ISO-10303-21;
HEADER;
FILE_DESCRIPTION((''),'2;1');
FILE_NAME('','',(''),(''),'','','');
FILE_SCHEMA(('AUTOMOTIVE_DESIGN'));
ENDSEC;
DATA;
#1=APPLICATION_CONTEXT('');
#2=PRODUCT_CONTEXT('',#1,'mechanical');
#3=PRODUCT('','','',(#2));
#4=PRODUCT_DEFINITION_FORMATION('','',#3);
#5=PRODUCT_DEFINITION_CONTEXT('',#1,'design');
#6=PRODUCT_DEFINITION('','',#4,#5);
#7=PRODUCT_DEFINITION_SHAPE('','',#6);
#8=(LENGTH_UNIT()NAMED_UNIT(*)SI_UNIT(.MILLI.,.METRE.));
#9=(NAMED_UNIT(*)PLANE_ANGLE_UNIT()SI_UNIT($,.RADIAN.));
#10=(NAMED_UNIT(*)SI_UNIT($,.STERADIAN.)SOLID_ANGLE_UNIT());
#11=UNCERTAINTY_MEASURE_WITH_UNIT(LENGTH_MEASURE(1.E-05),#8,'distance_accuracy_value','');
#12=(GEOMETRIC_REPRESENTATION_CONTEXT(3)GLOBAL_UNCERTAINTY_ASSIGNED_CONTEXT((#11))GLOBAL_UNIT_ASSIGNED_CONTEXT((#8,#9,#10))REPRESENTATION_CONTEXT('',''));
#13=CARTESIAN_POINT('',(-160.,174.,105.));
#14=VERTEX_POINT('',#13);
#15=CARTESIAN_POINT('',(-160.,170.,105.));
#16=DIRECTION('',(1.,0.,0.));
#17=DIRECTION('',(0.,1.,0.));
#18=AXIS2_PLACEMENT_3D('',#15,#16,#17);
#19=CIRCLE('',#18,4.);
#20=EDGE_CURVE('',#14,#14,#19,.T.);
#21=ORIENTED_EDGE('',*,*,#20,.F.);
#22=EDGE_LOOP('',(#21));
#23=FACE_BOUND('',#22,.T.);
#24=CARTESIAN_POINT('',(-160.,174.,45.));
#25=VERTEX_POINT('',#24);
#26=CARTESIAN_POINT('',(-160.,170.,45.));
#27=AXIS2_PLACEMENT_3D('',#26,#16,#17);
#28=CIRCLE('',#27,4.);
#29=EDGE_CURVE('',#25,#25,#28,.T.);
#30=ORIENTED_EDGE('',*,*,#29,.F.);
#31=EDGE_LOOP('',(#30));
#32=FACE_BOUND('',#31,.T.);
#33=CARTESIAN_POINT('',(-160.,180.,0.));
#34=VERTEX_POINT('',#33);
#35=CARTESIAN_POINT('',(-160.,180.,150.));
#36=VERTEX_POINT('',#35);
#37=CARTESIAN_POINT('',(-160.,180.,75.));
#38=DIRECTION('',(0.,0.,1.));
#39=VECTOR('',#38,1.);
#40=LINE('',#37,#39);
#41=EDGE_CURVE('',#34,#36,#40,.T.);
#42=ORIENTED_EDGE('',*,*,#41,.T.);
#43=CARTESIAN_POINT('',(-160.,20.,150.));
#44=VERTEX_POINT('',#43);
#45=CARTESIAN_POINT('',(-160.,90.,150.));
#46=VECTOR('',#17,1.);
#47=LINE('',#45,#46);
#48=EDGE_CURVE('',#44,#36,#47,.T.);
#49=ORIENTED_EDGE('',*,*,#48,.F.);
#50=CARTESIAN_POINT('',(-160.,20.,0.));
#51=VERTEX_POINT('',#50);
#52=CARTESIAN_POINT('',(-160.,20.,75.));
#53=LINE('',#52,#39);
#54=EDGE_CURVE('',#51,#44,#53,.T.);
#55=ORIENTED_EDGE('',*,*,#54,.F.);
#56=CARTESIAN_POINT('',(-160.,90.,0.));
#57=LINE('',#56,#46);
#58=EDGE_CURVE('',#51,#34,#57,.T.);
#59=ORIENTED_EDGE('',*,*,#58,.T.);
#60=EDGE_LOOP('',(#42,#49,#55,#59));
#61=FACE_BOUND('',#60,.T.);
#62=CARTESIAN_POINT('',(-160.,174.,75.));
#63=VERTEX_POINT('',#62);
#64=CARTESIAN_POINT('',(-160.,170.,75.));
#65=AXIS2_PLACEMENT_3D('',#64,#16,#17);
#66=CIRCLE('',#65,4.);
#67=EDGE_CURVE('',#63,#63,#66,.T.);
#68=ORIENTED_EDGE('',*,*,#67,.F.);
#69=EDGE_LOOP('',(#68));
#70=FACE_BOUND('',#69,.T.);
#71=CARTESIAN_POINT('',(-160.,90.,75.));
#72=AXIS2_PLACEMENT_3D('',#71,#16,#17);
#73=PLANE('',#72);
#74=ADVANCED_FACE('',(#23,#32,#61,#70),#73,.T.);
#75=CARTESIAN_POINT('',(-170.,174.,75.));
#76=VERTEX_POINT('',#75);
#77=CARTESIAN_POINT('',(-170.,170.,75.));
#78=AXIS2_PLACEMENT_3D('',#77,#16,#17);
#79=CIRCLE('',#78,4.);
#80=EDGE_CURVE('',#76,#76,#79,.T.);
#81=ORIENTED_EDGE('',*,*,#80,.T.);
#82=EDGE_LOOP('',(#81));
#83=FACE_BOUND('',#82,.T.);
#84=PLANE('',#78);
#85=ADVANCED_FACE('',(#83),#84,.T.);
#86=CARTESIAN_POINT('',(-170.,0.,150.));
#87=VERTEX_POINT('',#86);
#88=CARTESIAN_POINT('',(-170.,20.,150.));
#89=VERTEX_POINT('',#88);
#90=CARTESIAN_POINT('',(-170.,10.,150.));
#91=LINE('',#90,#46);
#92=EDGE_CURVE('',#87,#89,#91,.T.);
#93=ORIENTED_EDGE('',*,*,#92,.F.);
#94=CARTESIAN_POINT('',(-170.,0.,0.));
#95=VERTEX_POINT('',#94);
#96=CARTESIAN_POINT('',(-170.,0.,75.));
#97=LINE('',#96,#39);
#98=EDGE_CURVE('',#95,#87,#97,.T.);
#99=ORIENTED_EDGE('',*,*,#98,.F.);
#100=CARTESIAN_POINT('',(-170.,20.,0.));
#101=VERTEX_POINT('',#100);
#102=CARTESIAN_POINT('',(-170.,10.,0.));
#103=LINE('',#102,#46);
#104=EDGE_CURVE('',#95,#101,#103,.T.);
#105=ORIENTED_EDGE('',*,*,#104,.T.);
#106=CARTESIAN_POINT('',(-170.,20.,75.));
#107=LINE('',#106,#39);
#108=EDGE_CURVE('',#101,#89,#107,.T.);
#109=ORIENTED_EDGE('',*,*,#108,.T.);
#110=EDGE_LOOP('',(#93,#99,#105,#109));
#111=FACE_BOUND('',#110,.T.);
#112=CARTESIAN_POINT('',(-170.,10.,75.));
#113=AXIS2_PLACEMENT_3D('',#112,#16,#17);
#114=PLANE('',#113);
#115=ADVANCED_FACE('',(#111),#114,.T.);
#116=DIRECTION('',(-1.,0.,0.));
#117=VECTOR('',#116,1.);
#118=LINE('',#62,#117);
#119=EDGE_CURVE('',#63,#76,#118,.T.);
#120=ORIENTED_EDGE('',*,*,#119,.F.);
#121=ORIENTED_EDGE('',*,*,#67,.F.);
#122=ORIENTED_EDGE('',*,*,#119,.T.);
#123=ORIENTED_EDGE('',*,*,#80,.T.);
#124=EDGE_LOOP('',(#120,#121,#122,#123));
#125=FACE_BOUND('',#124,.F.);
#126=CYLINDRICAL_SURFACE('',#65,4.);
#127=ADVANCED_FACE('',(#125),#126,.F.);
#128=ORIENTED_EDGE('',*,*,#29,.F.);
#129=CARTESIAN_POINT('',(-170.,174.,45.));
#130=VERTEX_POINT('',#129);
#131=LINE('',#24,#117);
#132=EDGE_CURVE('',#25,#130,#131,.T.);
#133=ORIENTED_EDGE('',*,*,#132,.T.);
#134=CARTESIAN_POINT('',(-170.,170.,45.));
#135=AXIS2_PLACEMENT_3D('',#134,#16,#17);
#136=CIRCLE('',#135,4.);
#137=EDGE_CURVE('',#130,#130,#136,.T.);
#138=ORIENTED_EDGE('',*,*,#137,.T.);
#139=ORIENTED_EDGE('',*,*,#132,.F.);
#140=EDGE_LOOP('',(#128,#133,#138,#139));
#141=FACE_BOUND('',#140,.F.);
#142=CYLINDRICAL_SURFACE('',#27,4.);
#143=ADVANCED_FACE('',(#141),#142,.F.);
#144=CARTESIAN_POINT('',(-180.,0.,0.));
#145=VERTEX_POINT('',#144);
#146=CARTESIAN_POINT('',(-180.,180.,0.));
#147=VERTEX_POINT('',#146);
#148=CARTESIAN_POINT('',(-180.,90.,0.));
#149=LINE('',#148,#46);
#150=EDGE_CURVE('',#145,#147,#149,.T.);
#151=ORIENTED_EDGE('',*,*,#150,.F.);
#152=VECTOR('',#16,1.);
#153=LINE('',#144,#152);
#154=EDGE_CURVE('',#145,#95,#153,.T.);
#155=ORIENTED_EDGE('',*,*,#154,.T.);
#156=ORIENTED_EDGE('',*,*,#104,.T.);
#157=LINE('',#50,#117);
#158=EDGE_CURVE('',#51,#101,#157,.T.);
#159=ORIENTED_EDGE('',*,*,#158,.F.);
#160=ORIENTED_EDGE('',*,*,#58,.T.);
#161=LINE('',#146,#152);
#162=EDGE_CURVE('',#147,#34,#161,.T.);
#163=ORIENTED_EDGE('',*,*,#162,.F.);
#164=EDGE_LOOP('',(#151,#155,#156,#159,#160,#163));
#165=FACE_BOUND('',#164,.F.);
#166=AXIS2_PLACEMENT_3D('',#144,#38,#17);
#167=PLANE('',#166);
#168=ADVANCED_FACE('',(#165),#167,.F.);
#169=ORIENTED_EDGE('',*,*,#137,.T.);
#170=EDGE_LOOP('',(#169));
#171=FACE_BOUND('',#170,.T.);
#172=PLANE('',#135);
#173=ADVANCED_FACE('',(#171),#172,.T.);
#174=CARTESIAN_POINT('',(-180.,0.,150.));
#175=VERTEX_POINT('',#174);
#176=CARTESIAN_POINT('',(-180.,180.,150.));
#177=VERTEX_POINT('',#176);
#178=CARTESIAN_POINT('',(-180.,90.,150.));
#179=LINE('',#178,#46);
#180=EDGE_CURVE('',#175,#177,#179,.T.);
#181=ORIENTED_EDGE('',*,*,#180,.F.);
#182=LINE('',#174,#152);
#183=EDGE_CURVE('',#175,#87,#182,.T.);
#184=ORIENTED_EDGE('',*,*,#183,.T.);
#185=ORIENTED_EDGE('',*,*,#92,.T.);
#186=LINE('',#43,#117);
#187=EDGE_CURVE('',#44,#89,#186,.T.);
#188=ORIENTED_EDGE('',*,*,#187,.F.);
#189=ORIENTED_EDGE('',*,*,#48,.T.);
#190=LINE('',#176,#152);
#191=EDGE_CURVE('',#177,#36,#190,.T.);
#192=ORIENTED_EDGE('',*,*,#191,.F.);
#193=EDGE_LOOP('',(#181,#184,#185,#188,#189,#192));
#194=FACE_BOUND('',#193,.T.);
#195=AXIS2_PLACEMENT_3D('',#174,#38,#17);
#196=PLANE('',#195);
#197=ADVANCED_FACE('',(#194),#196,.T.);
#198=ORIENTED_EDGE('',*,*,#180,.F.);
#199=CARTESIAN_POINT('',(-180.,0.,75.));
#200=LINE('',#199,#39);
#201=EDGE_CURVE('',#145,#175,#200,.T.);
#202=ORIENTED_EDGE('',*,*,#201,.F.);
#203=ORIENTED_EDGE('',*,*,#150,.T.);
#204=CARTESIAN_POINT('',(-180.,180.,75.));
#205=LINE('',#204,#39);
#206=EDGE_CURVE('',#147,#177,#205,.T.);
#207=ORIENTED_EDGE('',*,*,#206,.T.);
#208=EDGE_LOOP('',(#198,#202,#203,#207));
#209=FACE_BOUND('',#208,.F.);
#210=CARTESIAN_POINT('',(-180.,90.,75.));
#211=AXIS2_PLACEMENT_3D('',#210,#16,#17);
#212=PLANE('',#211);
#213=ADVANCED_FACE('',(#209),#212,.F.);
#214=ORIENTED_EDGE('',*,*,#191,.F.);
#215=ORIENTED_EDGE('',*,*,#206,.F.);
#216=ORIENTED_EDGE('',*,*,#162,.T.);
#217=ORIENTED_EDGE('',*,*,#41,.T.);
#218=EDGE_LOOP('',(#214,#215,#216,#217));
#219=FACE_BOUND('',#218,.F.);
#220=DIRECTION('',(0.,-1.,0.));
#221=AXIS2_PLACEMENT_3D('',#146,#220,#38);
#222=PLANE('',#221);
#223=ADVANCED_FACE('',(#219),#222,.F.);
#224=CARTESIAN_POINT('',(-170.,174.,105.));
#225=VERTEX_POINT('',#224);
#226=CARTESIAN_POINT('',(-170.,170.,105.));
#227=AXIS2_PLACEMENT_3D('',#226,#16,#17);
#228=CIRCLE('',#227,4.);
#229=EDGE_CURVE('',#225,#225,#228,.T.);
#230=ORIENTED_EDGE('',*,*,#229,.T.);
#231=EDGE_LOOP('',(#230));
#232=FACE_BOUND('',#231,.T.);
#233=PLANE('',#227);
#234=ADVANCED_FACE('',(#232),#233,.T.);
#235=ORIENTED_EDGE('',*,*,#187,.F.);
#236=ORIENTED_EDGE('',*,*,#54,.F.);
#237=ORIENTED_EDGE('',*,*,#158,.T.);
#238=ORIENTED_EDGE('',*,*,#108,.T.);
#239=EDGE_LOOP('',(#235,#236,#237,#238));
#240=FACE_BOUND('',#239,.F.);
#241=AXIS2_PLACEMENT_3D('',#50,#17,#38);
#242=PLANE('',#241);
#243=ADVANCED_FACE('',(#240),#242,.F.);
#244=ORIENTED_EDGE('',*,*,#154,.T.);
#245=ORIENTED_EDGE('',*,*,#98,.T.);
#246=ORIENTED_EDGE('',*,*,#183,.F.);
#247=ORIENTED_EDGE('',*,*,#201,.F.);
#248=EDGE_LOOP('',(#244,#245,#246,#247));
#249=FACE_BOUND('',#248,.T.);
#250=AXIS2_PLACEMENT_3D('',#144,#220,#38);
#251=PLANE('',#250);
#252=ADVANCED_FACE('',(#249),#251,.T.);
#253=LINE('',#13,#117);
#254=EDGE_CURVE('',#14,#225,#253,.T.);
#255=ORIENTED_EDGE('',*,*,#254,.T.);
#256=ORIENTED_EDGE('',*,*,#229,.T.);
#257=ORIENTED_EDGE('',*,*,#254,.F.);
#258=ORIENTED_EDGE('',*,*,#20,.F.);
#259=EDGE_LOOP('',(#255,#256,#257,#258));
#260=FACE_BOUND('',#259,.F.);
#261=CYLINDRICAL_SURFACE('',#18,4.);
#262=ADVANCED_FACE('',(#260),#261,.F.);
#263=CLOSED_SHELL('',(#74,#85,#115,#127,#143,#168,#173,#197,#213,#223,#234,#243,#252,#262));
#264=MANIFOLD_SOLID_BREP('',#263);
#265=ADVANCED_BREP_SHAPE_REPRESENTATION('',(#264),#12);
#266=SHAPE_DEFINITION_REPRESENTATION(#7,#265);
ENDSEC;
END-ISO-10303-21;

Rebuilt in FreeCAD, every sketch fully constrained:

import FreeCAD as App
import Part
import Sketcher

V = App.Vector

doc = App.newDocument("Part")
params = doc.addObject("Spreadsheet::Sheet", "Params")
for row, (alias, value) in enumerate([
    ("sketch1_width", "180 mm"),
    ("sketch1_height", "150 mm"),
    ("pad1_length", "20 mm"),
    ("sketch2_diameter", "8 mm"),
    ("pocket1_length", "10 mm"),
    ("sketch3_width", "20 mm"),
    ("sketch3_height", "150 mm"),
    ("pocket2_length", "10 mm"),
], start=1):
    params.set(f"A{row}", alias)
    params.set(f"B{row}", "=" + value)
    params.setAlias(f"B{row}", alias)

body = doc.addObject("PartDesign::Body", "Body")

# Sketch on XZ plane
sketch1 = doc.addObject("Sketcher::SketchObject", "Sketch")
body.addObject(sketch1)
sketch1.AttachmentSupport = (doc.XZ_Plane, [""])
sketch1.MapMode = "FlatFace"
sketch1.addGeometry(Part.LineSegment(V(-180, 150, 0), V(-180, 0, 0)), False)
sketch1.addGeometry(Part.LineSegment(V(-180, 0, 0), V(0, 0, 0)), False)
sketch1.addGeometry(Part.LineSegment(V(0, 0, 0), V(0, 150, 0)), False)
sketch1.addGeometry(Part.LineSegment(V(0, 150, 0), V(-180, 150, 0)), False)
sketch1.addConstraint(Sketcher.Constraint("Coincident", 0, 2, 1, 1))
sketch1.addConstraint(Sketcher.Constraint("Coincident", 1, 2, 2, 1))
sketch1.addConstraint(Sketcher.Constraint("Coincident", 2, 2, 3, 1))
sketch1.addConstraint(Sketcher.Constraint("Coincident", 3, 2, 0, 1))
sketch1.addConstraint(Sketcher.Constraint("Vertical", 0))
sketch1.addConstraint(Sketcher.Constraint("Horizontal", 1))
sketch1.addConstraint(Sketcher.Constraint("Vertical", 2))
sketch1.addConstraint(Sketcher.Constraint("Horizontal", 3))
sketch1.addConstraint(Sketcher.Constraint("Coincident", 1, 2, -1, 1))
sketch1.addConstraint(Sketcher.Constraint("DistanceX", 1, 1, 1, 2, 180.0))
sketch1.addConstraint(Sketcher.Constraint("DistanceY", 0, 2, 0, 1, 150.0))
sketch1.setExpression("Constraints[9]", "Params.sketch1_width")
sketch1.setExpression("Constraints[10]", "Params.sketch1_height")
pad1 = doc.addObject("PartDesign::Pad", "Pad")
body.addObject(pad1)
pad1.Profile = sketch1
pad1.setExpression("Length", "Params.pad1_length")

# Sketch on XZ plane
sketch2 = doc.addObject("Sketcher::SketchObject", "Sketch001")
body.addObject(sketch2)
sketch2.AttachmentSupport = (doc.XZ_Plane, [""])
sketch2.MapMode = "FlatFace"
sketch2.AttachmentOffset = App.Placement(V(0, 0, 20), App.Rotation())
sketch2.addGeometry(Part.Circle(V(-10, 105, 0), V(0, 0, 1), 4), False)
sketch2.addGeometry(Part.Circle(V(-10, 75, 0), V(0, 0, 1), 4), False)
sketch2.addGeometry(Part.Circle(V(-10, 45, 0), V(0, 0, 1), 4), False)
sketch2.addConstraint(Sketcher.Constraint("Equal", 0, 1))
sketch2.addConstraint(Sketcher.Constraint("Equal", 1, 2))
sketch2.addConstraint(Sketcher.Constraint("Vertical", 0, 3, 1, 3))
sketch2.addConstraint(Sketcher.Constraint("Vertical", 1, 3, 2, 3))
sketch2.addConstraint(Sketcher.Constraint("Diameter", 0, 8.0))
sketch2.addConstraint(Sketcher.Constraint("DistanceX", 0, 3, -1, 1, 10.0))
sketch2.addConstraint(Sketcher.Constraint("DistanceY", -1, 1, 0, 3, 105.0))
sketch2.addConstraint(Sketcher.Constraint("DistanceY", -1, 1, 1, 3, 75.0))
sketch2.addConstraint(Sketcher.Constraint("DistanceY", -1, 1, 2, 3, 45.0))
sketch2.setExpression("Constraints[4]", "Params.sketch2_diameter")
pocket1 = doc.addObject("PartDesign::Pocket", "Pocket")
body.addObject(pocket1)
pocket1.Profile = sketch2
pocket1.setExpression("Length", "Params.pocket1_length")

# Sketch on XZ plane
sketch3 = doc.addObject("Sketcher::SketchObject", "Sketch002")
body.addObject(sketch3)
sketch3.AttachmentSupport = (doc.XZ_Plane, [""])
sketch3.MapMode = "FlatFace"
sketch3.AttachmentOffset = App.Placement(V(0, 0, 20), App.Rotation())
sketch3.addGeometry(Part.LineSegment(V(-180, 150, 0), V(-180, 0, 0)), False)
sketch3.addGeometry(Part.LineSegment(V(-180, 0, 0), V(-160, 0, 0)), False)
sketch3.addGeometry(Part.LineSegment(V(-160, 0, 0), V(-160, 150, 0)), False)
sketch3.addGeometry(Part.LineSegment(V(-160, 150, 0), V(-180, 150, 0)), False)
sketch3.addConstraint(Sketcher.Constraint("Coincident", 0, 2, 1, 1))
sketch3.addConstraint(Sketcher.Constraint("Coincident", 1, 2, 2, 1))
sketch3.addConstraint(Sketcher.Constraint("Coincident", 2, 2, 3, 1))
sketch3.addConstraint(Sketcher.Constraint("Coincident", 3, 2, 0, 1))
sketch3.addConstraint(Sketcher.Constraint("Vertical", 0))
sketch3.addConstraint(Sketcher.Constraint("Horizontal", 1))
sketch3.addConstraint(Sketcher.Constraint("Vertical", 2))
sketch3.addConstraint(Sketcher.Constraint("Horizontal", 3))
sketch3.addConstraint(Sketcher.Constraint("PointOnObject", 0, 2, -1))
sketch3.addConstraint(Sketcher.Constraint("DistanceX", 1, 1, 1, 2, 20.0))
sketch3.addConstraint(Sketcher.Constraint("DistanceY", 0, 2, 0, 1, 150.0))
sketch3.addConstraint(Sketcher.Constraint("DistanceX", 0, 2, -1, 1, 180.0))
sketch3.setExpression("Constraints[9]", "Params.sketch3_width")
sketch3.setExpression("Constraints[10]", "Params.sketch3_height")
pocket2 = doc.addObject("PartDesign::Pocket", "Pocket001")
body.addObject(pocket2)
pocket2.Profile = sketch3
pocket2.setExpression("Length", "Params.pocket2_length")
body2 = doc.addObject("PartDesign::Body", "Body001")
doc.recompute()

body.Placement = App.Placement(V(-180, 180, 0), App.Rotation(V(0, 0, 1), 90))
boolean = doc.addObject("PartDesign::Boolean", "Boolean")
body2.addObject(boolean)
boolean.Type = "Fuse"
boolean.addObjects([body])

doc.recompute()
